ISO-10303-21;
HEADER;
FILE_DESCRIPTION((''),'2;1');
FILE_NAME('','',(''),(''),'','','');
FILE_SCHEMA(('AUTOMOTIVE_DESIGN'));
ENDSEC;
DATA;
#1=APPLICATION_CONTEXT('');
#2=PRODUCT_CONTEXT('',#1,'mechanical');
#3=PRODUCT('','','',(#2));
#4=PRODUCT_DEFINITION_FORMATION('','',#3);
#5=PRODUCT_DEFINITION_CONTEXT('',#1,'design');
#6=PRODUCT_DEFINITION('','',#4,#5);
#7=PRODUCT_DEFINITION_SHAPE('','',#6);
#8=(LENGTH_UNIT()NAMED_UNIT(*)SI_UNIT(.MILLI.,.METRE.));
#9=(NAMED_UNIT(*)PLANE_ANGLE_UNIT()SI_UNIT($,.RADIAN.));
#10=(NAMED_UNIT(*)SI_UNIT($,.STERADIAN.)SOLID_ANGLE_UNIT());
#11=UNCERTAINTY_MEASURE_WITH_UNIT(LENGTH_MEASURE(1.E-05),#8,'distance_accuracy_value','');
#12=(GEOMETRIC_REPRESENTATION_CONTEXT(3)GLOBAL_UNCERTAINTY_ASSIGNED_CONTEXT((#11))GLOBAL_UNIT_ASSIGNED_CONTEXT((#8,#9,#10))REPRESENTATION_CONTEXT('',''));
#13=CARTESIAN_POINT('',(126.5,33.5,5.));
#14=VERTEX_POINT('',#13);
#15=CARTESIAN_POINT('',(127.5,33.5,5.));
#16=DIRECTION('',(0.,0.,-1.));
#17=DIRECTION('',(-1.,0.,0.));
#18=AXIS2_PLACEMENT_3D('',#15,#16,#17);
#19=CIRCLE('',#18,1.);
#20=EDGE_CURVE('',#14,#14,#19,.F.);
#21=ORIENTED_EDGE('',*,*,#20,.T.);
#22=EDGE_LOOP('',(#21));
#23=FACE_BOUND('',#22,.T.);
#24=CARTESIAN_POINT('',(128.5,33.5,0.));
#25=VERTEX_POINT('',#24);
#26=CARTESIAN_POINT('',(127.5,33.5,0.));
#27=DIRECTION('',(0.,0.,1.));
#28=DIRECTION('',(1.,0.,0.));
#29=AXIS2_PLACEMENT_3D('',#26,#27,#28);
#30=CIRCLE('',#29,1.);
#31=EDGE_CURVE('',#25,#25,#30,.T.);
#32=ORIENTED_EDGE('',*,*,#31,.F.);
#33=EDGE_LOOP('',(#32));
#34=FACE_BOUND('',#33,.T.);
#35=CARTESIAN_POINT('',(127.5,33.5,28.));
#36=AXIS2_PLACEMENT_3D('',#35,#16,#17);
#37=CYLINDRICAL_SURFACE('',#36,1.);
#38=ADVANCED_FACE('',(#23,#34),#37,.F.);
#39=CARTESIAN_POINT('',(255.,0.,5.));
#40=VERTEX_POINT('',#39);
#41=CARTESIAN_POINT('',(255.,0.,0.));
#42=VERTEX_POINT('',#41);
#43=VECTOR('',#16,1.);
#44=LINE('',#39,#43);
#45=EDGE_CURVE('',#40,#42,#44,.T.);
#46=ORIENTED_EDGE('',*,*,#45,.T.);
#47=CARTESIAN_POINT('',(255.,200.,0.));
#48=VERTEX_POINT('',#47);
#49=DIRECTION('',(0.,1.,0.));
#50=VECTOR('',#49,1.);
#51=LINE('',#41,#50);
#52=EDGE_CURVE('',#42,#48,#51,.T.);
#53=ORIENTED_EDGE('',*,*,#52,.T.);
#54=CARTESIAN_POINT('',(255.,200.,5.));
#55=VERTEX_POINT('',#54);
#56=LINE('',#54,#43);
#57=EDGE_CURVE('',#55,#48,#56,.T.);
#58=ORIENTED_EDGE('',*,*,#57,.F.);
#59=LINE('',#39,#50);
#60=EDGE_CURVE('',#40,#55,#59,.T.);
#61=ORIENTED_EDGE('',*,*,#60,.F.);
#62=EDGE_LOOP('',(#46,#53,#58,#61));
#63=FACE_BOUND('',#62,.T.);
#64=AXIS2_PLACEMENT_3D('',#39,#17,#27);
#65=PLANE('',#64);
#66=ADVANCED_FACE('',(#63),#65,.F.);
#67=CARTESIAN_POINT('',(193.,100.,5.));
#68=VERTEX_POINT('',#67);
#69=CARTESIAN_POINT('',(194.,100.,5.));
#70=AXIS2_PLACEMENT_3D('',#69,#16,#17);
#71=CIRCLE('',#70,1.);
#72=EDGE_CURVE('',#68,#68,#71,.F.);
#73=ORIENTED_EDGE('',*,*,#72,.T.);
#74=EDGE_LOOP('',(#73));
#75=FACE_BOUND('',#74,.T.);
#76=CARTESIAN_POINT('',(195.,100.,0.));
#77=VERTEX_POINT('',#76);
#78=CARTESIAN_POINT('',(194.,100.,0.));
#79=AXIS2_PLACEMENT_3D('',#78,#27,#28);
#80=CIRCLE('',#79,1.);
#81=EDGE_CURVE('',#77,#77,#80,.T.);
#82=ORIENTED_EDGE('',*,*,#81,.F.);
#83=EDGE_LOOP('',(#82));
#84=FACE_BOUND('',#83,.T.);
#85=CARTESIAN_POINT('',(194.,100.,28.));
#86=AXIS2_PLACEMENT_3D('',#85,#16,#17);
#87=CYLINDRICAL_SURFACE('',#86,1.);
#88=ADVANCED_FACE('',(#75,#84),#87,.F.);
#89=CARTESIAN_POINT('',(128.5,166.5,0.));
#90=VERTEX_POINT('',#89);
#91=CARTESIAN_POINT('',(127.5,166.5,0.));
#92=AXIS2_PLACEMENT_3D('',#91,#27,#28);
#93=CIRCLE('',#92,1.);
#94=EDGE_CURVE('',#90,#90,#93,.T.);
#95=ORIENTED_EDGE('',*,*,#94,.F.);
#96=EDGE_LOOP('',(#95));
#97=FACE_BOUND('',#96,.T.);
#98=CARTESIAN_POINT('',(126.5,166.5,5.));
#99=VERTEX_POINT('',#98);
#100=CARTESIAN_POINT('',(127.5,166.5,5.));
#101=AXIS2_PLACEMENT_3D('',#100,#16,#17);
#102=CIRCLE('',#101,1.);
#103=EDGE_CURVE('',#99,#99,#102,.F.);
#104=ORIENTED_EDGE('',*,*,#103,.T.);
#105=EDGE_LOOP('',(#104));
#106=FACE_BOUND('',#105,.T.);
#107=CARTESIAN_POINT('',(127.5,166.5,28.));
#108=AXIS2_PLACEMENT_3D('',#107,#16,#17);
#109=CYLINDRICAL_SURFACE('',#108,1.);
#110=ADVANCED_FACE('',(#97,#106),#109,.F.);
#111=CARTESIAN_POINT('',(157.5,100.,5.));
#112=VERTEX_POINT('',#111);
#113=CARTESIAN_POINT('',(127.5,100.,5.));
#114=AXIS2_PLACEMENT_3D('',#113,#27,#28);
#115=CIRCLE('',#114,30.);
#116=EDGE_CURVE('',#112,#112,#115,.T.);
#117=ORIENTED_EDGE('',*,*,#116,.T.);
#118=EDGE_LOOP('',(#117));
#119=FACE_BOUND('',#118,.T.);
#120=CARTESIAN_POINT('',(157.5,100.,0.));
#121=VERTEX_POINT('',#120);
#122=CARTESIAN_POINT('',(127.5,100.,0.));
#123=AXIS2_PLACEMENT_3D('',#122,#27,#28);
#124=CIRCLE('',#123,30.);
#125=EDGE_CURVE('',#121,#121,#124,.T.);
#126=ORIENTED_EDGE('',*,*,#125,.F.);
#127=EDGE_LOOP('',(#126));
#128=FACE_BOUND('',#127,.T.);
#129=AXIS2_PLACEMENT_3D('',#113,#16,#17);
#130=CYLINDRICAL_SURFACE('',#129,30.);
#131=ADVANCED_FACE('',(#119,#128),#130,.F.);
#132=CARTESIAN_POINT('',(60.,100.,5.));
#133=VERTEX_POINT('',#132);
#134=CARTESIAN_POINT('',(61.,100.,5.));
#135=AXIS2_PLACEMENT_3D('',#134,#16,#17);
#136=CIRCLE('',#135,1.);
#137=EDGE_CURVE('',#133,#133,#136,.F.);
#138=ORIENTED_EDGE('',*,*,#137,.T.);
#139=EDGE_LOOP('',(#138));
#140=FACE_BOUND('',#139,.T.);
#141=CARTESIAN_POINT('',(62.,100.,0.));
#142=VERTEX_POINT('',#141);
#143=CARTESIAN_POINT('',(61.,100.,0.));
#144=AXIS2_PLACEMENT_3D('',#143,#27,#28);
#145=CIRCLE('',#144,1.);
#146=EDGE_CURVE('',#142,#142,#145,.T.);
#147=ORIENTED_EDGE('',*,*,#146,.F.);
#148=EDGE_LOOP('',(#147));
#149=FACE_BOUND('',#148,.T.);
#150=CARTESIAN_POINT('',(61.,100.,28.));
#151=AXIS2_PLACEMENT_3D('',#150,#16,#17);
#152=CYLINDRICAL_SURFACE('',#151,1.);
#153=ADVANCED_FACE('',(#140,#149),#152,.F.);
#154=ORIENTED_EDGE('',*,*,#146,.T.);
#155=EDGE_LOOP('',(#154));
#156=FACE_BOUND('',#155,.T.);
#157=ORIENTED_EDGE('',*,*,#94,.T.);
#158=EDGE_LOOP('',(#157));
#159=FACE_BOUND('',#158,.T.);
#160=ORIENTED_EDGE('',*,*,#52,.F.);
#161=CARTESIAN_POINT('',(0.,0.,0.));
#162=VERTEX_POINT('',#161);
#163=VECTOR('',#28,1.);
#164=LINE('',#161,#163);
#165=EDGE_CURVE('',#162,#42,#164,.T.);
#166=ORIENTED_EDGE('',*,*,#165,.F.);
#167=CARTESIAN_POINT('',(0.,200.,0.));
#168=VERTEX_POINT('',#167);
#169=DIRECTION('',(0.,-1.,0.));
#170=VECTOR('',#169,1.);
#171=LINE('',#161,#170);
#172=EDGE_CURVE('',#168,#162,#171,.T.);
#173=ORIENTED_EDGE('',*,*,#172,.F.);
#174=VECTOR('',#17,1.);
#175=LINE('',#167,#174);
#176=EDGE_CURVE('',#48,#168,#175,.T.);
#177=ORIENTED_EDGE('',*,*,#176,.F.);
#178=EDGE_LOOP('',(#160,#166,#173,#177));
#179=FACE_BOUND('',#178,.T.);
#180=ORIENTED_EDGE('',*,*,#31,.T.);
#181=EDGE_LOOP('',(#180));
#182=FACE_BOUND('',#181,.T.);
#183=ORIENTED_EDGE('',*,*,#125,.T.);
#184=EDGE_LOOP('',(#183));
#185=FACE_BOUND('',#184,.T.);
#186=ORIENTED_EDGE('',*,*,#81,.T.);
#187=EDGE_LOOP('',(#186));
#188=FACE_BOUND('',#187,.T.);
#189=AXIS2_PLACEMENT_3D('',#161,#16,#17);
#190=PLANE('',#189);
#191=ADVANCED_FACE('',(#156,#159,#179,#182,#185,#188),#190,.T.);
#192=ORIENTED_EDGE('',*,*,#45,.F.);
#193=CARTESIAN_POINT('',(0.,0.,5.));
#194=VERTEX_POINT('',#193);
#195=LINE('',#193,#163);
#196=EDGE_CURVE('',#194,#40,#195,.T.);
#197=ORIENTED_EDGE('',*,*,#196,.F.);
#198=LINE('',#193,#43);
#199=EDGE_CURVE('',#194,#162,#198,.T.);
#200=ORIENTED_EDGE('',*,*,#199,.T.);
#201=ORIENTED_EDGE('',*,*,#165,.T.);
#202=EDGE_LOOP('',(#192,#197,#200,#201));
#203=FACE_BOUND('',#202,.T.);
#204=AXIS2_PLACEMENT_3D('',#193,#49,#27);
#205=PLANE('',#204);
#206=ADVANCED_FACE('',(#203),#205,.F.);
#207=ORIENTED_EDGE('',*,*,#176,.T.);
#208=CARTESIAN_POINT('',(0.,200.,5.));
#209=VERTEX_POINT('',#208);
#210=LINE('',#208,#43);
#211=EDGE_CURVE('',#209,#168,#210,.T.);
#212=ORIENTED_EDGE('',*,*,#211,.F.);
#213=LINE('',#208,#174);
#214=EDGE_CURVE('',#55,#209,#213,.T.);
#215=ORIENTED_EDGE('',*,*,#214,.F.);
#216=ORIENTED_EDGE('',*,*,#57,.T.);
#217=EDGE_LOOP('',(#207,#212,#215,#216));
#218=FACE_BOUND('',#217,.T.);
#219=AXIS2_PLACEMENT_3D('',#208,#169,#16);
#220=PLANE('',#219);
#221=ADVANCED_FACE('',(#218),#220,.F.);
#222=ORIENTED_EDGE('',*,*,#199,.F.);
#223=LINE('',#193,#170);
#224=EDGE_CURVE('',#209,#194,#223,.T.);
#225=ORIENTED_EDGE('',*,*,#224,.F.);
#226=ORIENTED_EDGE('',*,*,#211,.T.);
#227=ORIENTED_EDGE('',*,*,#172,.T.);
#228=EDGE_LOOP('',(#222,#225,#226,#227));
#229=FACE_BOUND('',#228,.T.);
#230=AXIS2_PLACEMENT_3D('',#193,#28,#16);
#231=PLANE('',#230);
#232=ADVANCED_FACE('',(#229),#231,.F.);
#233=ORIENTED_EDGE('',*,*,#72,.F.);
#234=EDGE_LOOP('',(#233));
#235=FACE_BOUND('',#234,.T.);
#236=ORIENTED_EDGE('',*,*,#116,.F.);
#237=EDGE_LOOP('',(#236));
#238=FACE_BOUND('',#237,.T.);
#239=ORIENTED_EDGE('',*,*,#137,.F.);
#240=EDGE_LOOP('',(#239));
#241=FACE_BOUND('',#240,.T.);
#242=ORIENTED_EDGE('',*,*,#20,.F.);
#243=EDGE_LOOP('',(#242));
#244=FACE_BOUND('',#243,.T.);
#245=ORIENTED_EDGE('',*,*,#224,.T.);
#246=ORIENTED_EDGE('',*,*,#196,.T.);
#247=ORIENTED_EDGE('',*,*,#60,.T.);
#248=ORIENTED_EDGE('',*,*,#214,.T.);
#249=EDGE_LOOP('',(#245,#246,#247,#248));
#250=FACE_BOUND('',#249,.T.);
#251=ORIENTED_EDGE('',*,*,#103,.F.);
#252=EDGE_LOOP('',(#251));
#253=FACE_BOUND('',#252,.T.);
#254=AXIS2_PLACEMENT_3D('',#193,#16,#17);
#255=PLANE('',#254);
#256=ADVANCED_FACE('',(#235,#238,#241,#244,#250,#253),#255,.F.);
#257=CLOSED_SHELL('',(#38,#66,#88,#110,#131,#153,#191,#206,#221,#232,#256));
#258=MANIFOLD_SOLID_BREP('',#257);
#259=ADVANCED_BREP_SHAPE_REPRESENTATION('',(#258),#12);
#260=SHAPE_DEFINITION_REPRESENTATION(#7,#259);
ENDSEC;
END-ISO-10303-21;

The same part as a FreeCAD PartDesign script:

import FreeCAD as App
import Part
import Sketcher
from FreeCAD import Vector
Q = App.Units.Quantity

doc = App.newDocument("Part")
body = doc.addObject("PartDesign::Body", "Body")

sketch1 = body.newObject("Sketcher::SketchObject", "Sketch")
sketch1.AttachmentSupport = (doc.getObject("XY_Plane"), [""])
sketch1.MapMode = "FlatFace"
sketch1.addGeometry([
    Part.LineSegment(Vector(0, 200, 0), Vector(0, 0, 0)),
    Part.LineSegment(Vector(0, 0, 0), Vector(255, 0, 0)),
    Part.LineSegment(Vector(255, 0, 0), Vector(255, 200, 0)),
    Part.LineSegment(Vector(255, 200, 0), Vector(0, 200, 0)),
    Part.Circle(Vector(127.5, 100, 0), Vector(0, 0, 1), 30),
], False)
sketch1.addConstraint([
    Sketcher.Constraint("Coincident", 0, 2, 1, 1),
    Sketcher.Constraint("Coincident", 1, 2, 2, 1),
    Sketcher.Constraint("Coincident", 2, 2, 3, 1),
    Sketcher.Constraint("Coincident", 3, 2, 0, 1),
    Sketcher.Constraint("Vertical", 0),
    Sketcher.Constraint("Horizontal", 1),
    Sketcher.Constraint("Vertical", 2),
    Sketcher.Constraint("Horizontal", 3),
    Sketcher.Constraint("Coincident", 0, 2, -1, 1),
    Sketcher.Constraint("Diameter", 4, Q("60 mm")),
    Sketcher.Constraint("DistanceX", 1, 1, 1, 2, Q("255 mm")),
    Sketcher.Constraint("DistanceY", 0, 2, 0, 1, Q("200 mm")),
    Sketcher.Constraint("DistanceY", -1, 1, 4, 3, Q("100 mm")),
    Sketcher.Constraint("DistanceX", -1, 1, 4, 3, Q("127.5 mm")),
])
pad1 = body.newObject("PartDesign::Pad", "Pad")
pad1.Profile = sketch1
pad1.Length = 5

sketch2 = body.newObject("Sketcher::SketchObject", "Sketch001")
sketch2.AttachmentSupport = (doc.getObject("XY_Plane"), [""])
sketch2.MapMode = "FlatFace"
sketch2.addGeometry([
    Part.Circle(Vector(61, 100, 0), Vector(0, 0, 1), 1),
    Part.Circle(Vector(127.5, 166.5, 0), Vector(0, 0, 1), 1),
    Part.Circle(Vector(194, 100, 0), Vector(0, 0, 1), 1),
    Part.Circle(Vector(127.5, 33.5, 0), Vector(0, 0, 1), 1),
], False)
sketch2.addConstraint([
    Sketcher.Constraint("Equal", 0, 1),
    Sketcher.Constraint("Equal", 1, 2),
    Sketcher.Constraint("Equal", 2, 3),
    Sketcher.Constraint("Horizontal", 0, 3, 2, 3),
    Sketcher.Constraint("Vertical", 1, 3, 3, 3),
    Sketcher.Constraint("Diameter", 0, Q("2 mm")),
    Sketcher.Constraint("DistanceX", -1, 1, 0, 3, Q("61 mm")),
    Sketcher.Constraint("DistanceY", -1, 1, 0, 3, Q("100 mm")),
    Sketcher.Constraint("DistanceX", -1, 1, 2, 3, Q("194 mm")),
    Sketcher.Constraint("DistanceY", 3, 3, 1, 3, Q("133 mm")),
    Sketcher.Constraint("DistanceX", -1, 1, 1, 3, Q("127.5 mm")),
    Sketcher.Constraint("DistanceY", -1, 1, 1, 3, Q("166.5 mm")),
])
pocket1 = body.newObject("PartDesign::Pocket", "Pocket")
pocket1.Profile = sketch2
pocket1.Length = 28
pocket1.Reversed = True

doc.recompute()
